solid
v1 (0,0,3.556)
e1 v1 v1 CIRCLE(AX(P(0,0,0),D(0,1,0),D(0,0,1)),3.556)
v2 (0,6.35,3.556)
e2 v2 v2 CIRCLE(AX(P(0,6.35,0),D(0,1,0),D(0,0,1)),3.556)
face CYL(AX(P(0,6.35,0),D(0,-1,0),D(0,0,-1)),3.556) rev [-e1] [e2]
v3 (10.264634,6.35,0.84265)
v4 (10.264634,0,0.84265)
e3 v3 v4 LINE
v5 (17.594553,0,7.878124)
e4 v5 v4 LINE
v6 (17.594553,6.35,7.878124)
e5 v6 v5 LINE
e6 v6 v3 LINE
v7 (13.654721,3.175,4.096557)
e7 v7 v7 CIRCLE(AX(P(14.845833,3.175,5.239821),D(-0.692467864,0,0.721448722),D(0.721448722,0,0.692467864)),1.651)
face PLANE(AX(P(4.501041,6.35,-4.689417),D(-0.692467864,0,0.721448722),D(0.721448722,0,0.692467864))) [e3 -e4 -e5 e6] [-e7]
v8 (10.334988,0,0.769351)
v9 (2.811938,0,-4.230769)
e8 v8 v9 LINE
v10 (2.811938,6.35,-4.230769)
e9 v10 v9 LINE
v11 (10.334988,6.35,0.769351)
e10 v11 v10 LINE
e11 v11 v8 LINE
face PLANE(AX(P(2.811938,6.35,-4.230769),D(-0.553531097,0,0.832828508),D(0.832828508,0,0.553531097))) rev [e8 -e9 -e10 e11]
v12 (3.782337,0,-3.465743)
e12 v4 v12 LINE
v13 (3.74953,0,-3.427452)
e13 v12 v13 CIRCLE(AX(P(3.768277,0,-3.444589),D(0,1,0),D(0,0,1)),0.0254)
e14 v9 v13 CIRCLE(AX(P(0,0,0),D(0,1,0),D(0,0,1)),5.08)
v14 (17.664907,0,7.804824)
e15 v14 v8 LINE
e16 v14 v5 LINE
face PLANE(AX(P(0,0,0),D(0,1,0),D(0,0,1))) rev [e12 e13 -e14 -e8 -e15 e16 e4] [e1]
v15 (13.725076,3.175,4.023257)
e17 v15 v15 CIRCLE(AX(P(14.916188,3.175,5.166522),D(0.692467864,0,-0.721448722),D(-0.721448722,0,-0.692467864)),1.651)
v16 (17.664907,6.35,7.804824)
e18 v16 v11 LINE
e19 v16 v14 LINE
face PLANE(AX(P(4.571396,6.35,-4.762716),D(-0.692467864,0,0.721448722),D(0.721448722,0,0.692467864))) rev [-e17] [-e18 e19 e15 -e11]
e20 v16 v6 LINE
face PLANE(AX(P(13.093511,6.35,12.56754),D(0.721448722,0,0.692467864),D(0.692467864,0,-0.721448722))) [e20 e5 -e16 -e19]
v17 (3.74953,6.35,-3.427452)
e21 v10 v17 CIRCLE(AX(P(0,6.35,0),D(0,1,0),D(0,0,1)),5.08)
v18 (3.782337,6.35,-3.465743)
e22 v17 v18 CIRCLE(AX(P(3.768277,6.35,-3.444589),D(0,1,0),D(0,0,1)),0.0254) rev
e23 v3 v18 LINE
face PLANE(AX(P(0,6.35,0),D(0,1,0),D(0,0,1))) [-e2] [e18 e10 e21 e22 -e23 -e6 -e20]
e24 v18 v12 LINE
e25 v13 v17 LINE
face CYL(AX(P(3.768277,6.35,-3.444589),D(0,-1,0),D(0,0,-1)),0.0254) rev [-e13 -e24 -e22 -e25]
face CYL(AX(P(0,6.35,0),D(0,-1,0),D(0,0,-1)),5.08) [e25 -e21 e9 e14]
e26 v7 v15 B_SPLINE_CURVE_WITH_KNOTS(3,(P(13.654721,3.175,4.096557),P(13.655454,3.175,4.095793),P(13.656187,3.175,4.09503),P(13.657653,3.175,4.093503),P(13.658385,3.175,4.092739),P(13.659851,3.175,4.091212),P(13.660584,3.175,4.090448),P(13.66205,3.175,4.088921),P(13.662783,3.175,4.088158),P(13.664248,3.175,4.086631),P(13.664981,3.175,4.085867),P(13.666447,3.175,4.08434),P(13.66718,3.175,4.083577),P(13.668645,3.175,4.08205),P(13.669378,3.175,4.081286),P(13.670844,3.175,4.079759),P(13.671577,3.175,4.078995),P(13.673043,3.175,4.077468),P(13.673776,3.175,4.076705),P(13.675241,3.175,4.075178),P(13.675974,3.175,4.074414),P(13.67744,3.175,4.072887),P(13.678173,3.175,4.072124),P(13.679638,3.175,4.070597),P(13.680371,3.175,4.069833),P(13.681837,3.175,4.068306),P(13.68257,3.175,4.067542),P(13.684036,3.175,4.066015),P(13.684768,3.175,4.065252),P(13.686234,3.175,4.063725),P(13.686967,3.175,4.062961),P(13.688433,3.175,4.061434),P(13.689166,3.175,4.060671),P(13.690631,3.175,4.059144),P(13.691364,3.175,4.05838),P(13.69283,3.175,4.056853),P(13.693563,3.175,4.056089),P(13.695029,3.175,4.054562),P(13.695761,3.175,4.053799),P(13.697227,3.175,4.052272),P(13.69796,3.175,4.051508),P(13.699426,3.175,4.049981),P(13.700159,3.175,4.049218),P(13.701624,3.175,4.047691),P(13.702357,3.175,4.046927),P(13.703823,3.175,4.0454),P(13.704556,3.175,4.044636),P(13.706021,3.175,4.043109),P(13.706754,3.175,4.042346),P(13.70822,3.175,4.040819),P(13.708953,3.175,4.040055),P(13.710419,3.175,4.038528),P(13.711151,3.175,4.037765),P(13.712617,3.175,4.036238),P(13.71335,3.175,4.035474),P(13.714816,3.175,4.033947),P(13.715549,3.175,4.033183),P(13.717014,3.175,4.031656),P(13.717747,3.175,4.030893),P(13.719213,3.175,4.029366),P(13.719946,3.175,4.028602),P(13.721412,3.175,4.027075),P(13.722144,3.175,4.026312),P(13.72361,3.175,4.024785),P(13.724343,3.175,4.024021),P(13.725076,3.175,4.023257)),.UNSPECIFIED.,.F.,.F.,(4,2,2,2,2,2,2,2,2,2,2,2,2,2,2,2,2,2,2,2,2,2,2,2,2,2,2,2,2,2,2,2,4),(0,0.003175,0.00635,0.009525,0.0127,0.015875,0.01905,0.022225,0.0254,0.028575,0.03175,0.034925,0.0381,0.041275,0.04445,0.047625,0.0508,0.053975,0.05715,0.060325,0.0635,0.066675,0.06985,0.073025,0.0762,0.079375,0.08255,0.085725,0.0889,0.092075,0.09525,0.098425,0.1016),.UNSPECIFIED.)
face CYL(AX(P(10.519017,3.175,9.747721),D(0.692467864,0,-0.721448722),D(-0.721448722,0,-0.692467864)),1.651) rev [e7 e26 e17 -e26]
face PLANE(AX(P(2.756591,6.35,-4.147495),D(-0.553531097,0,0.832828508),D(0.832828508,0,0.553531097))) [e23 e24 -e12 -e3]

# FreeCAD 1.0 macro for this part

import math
import FreeCAD as App
import Part
import Sketcher
from FreeCAD import Vector
Q = App.Units.Quantity


def edges_at(feature, points):
    """Names of the edges that pass closest to the given points."""
    edges = feature.Shape.Edges
    near = lambda p: min(range(len(edges)), key=lambda i: edges[i].distToShape(Part.Vertex(*p))[0])
    return sorted({f"Edge{near(p) + 1}" for p in points})

doc = App.newDocument("Part")
body = doc.addObject("PartDesign::Body", "Body")

# Sketch on XZ plane
sketch1 = body.newObject("Sketcher::SketchObject", "Sketch")
sketch1.AttachmentSupport = (doc.getObject("XZ_Plane"), [""])
sketch1.MapMode = "FlatFace"
sketch1.addGeometry(Part.LineSegment(Vector(3.591869, -3.592335, 0), Vector(10.264634, 0.84265, 0)), False)
sketch1.addGeometry(Part.LineSegment(Vector(10.264634, 0.84265, 0), Vector(17.594553, 7.878124, 0)), False)
sketch1.addGeometry(Part.LineSegment(Vector(17.594553, 7.878124, 0), Vector(17.664907, 7.804824, 0)), False)
sketch1.addGeometry(Part.LineSegment(Vector(17.664907, 7.804824, 0), Vector(10.334988, 0.769351, 0)), False)
sketch1.addGeometry(Part.LineSegment(Vector(10.334988, 0.769351, 0), Vector(2.811938, -4.230769, 0)), False)
sketch1.addGeometry(Part.ArcOfCircle(Part.Circle(Vector(0, 0, 0), Vector(0, 0, 1), 5.08), math.radians(-45.003717), math.radians(303.6096)), False)
sketch1.addGeometry(Part.Circle(Vector(0, 0, 0), Vector(0, 0, 1), 3.556), False)
sketch1.addConstraint(Sketcher.Constraint("Coincident", 0, 2, 1, 1))
sketch1.addConstraint(Sketcher.Constraint("Coincident", 1, 2, 2, 1))
sketch1.addConstraint(Sketcher.Constraint("Coincident", 2, 2, 3, 1))
sketch1.addConstraint(Sketcher.Constraint("Coincident", 3, 2, 4, 1))
sketch1.addConstraint(Sketcher.Constraint("Coincident", 4, 2, 5, 2))
sketch1.addConstraint(Sketcher.Constraint("Coincident", 5, 1, 0, 1))
sketch1.addConstraint(Sketcher.Constraint("Coincident", 5, 3, -1, 1))
sketch1.addConstraint(Sketcher.Constraint("Coincident", 6, 3, -1, 1))
sketch1.addConstraint(Sketcher.Constraint("Radius", 5, Q("0.2 in")))
sketch1.addConstraint(Sketcher.Constraint("Diameter", 6, Q("0.28 in")))
sketch1.addConstraint(Sketcher.Constraint("Distance", 1, Q("0.4 in")))
sketch1.addConstraint(Sketcher.Constraint("Distance", 3, Q("0.4 in")))
sketch1.addConstraint(Sketcher.Constraint("Distance", 2, Q("0.004 in")))
sketch1.addConstraint(Sketcher.Constraint("DistanceY", 2, 2, 1, 2, 0.073299))
sketch1.addConstraint(Sketcher.Constraint("DistanceY", 3, 2, 0, 2, 0.073299))
sketch1.addConstraint(Sketcher.Constraint("Distance", 0, 8.012171))
sketch1.addConstraint(Sketcher.Constraint("DistanceY", -1, 1, 0, 2, 0.84265))
sketch1.addConstraint(Sketcher.Constraint("DistanceX", -1, 1, 3, 2, 10.334988))
sketch1.addConstraint(Sketcher.Constraint("DistanceY", 4, 2, -1, 1, 4.230769))
sketch1.addConstraint(Sketcher.Constraint("DistanceX", 0, 2, 1, 2, 7.329919))
pad1 = body.newObject("PartDesign::Pad", "Pad")
pad1.Profile = sketch1
pad1.Length = Q("0.25 in")
pad1.Reversed = True

# Sketch on an angled plane
sketch2 = body.newObject("Sketcher::SketchObject", "Sketch001")
sketch2.Placement = App.Placement(Vector(3.836508, 0, -5.468083), App.Rotation(Vector(-0.721448722, 0, -0.692467864), Vector(0, 1.000000001, 0), Vector(0.692467864, 0, -0.721448722), "ZXY"))
sketch2.addGeometry(Part.Circle(Vector(-15.357542, 3.175, 0), Vector(0, 0, 1), 1.651), False)
sketch2.addConstraint(Sketcher.Constraint("Diameter", 0, Q("0.13 in")))
sketch2.addConstraint(Sketcher.Constraint("DistanceY", -1, 1, 0, 3, Q("0.125 in")))
sketch2.addConstraint(Sketcher.Constraint("DistanceX", 0, 3, -1, 1, 15.357542))
pocket1 = body.newObject("PartDesign::Pocket", "Pocket")
pocket1.Profile = sketch2
pocket1.Length = Q("0.25 in")
doc.recompute()

fillet = body.newObject("PartDesign::Fillet", "Fillet")
fillet.Base = (pocket1, edges_at(pocket1, [(3.592, 3.175, -3.592)]))
fillet.Radius = Q("0.001 in")

doc.recompute()
